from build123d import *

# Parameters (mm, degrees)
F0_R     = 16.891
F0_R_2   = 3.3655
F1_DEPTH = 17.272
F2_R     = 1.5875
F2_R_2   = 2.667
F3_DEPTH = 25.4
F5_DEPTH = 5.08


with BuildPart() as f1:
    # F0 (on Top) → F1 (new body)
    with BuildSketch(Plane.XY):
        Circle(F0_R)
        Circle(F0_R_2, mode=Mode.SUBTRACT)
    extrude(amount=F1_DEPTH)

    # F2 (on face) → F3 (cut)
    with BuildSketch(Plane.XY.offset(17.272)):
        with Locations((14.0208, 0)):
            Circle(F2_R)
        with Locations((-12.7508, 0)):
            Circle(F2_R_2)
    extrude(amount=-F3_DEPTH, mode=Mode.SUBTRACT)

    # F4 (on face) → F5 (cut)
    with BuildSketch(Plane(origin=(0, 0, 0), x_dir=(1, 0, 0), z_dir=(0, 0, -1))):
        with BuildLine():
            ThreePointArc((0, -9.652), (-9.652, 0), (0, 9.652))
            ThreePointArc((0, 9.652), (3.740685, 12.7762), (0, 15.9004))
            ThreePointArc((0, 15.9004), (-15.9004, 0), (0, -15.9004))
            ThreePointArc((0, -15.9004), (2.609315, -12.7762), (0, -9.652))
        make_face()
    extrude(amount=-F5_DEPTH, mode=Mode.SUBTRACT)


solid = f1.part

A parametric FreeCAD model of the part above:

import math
import FreeCAD as App
import Part
import Sketcher

V = App.Vector
Q = App.Units.Quantity

doc = App.newDocument("Part")
params = doc.addObject("Spreadsheet::Sheet", "Params")
for row, (alias, value) in enumerate([
    ("sketch1_diameter", "1.33 in"),
    ("sketch1_diameter2", "0.265 in"),
    ("pad1_length", "0.68 in"),
    ("sketch2_diameter", "0.21 in"),
    ("sketch2_diameter2", "0.125 in"),
    ("pocket1_length", "1 in"),
    ("sketch3_radius", "0.38 in"),
    ("sketch3_radius2", "0.125 in"),
    ("sketch3_radius3", "0.626 in"),
    ("pocket2_length", "0.2 in"),
], start=1):
    params.set(f"A{row}", alias)
    params.set(f"B{row}", "=" + value)
    params.setAlias(f"B{row}", alias)

body = doc.addObject("PartDesign::Body", "Body")

# Sketch on XY plane
sketch1 = doc.addObject("Sketcher::SketchObject", "Sketch")
body.addObject(sketch1)
sketch1.AttachmentSupport = (doc.XY_Plane, [""])
sketch1.MapMode = "FlatFace"
sketch1.addGeometry([
    Part.Circle(V(0, 0, 0), V(0, 0, 1), 16.9),
    Part.Circle(V(0, 0, 0), V(0, 0, 1), 3.4),
], False)
sketch1.addConstraint([
    Sketcher.Constraint("Coincident", 0, 3, -1, 1),
    Sketcher.Constraint("Coincident", 1, 3, -1, 1),
    Sketcher.Constraint("Diameter", 0, Q("1.33 in")),
    Sketcher.Constraint("Diameter", 1, Q("0.265 in")),
])
sketch1.setExpression("Constraints[2]", "Params.sketch1_diameter")
sketch1.setExpression("Constraints[3]", "Params.sketch1_diameter2")
pad1 = doc.addObject("PartDesign::Pad", "Pad")
body.addObject(pad1)
pad1.Profile = sketch1
pad1.setExpression("Length", "Params.pad1_length")

# Sketch on XY plane
sketch2 = doc.addObject("Sketcher::SketchObject", "Sketch001")
body.addObject(sketch2)
sketch2.AttachmentSupport = (doc.XY_Plane, [""])
sketch2.MapMode = "FlatFace"
sketch2.AttachmentOffset = App.Placement(V(0, 0, 0.68 * 25.4), App.Rotation())
sketch2.addGeometry([
    Part.Circle(V(14, 0, 0), V(0, 0, 1), 1.6),
    Part.Circle(V(-12.8, 0, 0), V(0, 0, 1), 2.7),
], False)
sketch2.addConstraint([
    Sketcher.Constraint("PointOnObject", 0, 3, -1),
    Sketcher.Constraint("PointOnObject", 1, 3, -1),
    Sketcher.Constraint("Diameter", 1, Q("0.21 in")),
    Sketcher.Constraint("Diameter", 0, Q("0.125 in")),
    Sketcher.Constraint("DistanceX", -1, 1, 0, 3, Q("0.552 in")),
    Sketcher.Constraint("DistanceX", 1, 3, -1, 1, Q("0.502 in")),
])
sketch2.setExpression("Constraints[2]", "Params.sketch2_diameter")
sketch2.setExpression("Constraints[3]", "Params.sketch2_diameter2")
pocket1 = doc.addObject("PartDesign::Pocket", "Pocket")
body.addObject(pocket1)
pocket1.Profile = sketch2
pocket1.setExpression("Length", "Params.pocket1_length")

# Sketch on XY plane
sketch3 = doc.addObject("Sketcher::SketchObject", "Sketch002")
body.addObject(sketch3)
sketch3.AttachmentSupport = (doc.XY_Plane, [""])
sketch3.MapMode = "FlatFace"
sketch3.addGeometry([
    Part.ArcOfCircle(Part.Circle(V(0, 0, 0), V(0, 0, 1), 9.7), math.radians(90), math.radians(270)),
    Part.ArcOfCircle(Part.Circle(V(0.6, -12.8, 0), V(0, 0, 1), 3.2), math.radians(-100), math.radians(100)),
    Part.ArcOfCircle(Part.Circle(V(0, 0, 0), V(0, 0, 1), 15.9), math.radians(90), math.radians(270)),
    Part.ArcOfCircle(Part.Circle(V(-0.6, 12.8, 0), V(0, 0, 1), 3.2), math.radians(-80), math.radians(80)),
], False)
sketch3.addConstraint([
    Sketcher.Constraint("Coincident", 0, 2, 1, 2),
    Sketcher.Constraint("Coincident", 1, 1, 2, 2),
    Sketcher.Constraint("Coincident", 2, 1, 3, 2),
    Sketcher.Constraint("Coincident", 3, 1, 0, 1),
    Sketcher.Constraint("Coincident", 0, 3, -1, 1),
    Sketcher.Constraint("Coincident", 2, 3, -1, 1),
    Sketcher.Constraint("Equal", 1, 3),
    Sketcher.Constraint("Symmetric", 1, 3, 3, 3, -1, 1),
    Sketcher.Constraint("PointOnObject", 0, 2, -2),
    Sketcher.Constraint("PointOnObject", 1, 1, -2),
    Sketcher.Constraint("Radius", 0, Q("0.38 in")),
    Sketcher.Constraint("Radius", 1, Q("0.125 in")),
    Sketcher.Constraint("Radius", 2, Q("0.626 in")),
])
sketch3.setExpression("Constraints[10]", "Params.sketch3_radius")
sketch3.setExpression("Constraints[11]", "Params.sketch3_radius2")
sketch3.setExpression("Constraints[12]", "Params.sketch3_radius3")
pocket2 = doc.addObject("PartDesign::Pocket", "Pocket001")
body.addObject(pocket2)
pocket2.Profile = sketch3
pocket2.setExpression("Length", "Params.pocket2_length")
pocket2.Reversed = True

doc.recompute()
